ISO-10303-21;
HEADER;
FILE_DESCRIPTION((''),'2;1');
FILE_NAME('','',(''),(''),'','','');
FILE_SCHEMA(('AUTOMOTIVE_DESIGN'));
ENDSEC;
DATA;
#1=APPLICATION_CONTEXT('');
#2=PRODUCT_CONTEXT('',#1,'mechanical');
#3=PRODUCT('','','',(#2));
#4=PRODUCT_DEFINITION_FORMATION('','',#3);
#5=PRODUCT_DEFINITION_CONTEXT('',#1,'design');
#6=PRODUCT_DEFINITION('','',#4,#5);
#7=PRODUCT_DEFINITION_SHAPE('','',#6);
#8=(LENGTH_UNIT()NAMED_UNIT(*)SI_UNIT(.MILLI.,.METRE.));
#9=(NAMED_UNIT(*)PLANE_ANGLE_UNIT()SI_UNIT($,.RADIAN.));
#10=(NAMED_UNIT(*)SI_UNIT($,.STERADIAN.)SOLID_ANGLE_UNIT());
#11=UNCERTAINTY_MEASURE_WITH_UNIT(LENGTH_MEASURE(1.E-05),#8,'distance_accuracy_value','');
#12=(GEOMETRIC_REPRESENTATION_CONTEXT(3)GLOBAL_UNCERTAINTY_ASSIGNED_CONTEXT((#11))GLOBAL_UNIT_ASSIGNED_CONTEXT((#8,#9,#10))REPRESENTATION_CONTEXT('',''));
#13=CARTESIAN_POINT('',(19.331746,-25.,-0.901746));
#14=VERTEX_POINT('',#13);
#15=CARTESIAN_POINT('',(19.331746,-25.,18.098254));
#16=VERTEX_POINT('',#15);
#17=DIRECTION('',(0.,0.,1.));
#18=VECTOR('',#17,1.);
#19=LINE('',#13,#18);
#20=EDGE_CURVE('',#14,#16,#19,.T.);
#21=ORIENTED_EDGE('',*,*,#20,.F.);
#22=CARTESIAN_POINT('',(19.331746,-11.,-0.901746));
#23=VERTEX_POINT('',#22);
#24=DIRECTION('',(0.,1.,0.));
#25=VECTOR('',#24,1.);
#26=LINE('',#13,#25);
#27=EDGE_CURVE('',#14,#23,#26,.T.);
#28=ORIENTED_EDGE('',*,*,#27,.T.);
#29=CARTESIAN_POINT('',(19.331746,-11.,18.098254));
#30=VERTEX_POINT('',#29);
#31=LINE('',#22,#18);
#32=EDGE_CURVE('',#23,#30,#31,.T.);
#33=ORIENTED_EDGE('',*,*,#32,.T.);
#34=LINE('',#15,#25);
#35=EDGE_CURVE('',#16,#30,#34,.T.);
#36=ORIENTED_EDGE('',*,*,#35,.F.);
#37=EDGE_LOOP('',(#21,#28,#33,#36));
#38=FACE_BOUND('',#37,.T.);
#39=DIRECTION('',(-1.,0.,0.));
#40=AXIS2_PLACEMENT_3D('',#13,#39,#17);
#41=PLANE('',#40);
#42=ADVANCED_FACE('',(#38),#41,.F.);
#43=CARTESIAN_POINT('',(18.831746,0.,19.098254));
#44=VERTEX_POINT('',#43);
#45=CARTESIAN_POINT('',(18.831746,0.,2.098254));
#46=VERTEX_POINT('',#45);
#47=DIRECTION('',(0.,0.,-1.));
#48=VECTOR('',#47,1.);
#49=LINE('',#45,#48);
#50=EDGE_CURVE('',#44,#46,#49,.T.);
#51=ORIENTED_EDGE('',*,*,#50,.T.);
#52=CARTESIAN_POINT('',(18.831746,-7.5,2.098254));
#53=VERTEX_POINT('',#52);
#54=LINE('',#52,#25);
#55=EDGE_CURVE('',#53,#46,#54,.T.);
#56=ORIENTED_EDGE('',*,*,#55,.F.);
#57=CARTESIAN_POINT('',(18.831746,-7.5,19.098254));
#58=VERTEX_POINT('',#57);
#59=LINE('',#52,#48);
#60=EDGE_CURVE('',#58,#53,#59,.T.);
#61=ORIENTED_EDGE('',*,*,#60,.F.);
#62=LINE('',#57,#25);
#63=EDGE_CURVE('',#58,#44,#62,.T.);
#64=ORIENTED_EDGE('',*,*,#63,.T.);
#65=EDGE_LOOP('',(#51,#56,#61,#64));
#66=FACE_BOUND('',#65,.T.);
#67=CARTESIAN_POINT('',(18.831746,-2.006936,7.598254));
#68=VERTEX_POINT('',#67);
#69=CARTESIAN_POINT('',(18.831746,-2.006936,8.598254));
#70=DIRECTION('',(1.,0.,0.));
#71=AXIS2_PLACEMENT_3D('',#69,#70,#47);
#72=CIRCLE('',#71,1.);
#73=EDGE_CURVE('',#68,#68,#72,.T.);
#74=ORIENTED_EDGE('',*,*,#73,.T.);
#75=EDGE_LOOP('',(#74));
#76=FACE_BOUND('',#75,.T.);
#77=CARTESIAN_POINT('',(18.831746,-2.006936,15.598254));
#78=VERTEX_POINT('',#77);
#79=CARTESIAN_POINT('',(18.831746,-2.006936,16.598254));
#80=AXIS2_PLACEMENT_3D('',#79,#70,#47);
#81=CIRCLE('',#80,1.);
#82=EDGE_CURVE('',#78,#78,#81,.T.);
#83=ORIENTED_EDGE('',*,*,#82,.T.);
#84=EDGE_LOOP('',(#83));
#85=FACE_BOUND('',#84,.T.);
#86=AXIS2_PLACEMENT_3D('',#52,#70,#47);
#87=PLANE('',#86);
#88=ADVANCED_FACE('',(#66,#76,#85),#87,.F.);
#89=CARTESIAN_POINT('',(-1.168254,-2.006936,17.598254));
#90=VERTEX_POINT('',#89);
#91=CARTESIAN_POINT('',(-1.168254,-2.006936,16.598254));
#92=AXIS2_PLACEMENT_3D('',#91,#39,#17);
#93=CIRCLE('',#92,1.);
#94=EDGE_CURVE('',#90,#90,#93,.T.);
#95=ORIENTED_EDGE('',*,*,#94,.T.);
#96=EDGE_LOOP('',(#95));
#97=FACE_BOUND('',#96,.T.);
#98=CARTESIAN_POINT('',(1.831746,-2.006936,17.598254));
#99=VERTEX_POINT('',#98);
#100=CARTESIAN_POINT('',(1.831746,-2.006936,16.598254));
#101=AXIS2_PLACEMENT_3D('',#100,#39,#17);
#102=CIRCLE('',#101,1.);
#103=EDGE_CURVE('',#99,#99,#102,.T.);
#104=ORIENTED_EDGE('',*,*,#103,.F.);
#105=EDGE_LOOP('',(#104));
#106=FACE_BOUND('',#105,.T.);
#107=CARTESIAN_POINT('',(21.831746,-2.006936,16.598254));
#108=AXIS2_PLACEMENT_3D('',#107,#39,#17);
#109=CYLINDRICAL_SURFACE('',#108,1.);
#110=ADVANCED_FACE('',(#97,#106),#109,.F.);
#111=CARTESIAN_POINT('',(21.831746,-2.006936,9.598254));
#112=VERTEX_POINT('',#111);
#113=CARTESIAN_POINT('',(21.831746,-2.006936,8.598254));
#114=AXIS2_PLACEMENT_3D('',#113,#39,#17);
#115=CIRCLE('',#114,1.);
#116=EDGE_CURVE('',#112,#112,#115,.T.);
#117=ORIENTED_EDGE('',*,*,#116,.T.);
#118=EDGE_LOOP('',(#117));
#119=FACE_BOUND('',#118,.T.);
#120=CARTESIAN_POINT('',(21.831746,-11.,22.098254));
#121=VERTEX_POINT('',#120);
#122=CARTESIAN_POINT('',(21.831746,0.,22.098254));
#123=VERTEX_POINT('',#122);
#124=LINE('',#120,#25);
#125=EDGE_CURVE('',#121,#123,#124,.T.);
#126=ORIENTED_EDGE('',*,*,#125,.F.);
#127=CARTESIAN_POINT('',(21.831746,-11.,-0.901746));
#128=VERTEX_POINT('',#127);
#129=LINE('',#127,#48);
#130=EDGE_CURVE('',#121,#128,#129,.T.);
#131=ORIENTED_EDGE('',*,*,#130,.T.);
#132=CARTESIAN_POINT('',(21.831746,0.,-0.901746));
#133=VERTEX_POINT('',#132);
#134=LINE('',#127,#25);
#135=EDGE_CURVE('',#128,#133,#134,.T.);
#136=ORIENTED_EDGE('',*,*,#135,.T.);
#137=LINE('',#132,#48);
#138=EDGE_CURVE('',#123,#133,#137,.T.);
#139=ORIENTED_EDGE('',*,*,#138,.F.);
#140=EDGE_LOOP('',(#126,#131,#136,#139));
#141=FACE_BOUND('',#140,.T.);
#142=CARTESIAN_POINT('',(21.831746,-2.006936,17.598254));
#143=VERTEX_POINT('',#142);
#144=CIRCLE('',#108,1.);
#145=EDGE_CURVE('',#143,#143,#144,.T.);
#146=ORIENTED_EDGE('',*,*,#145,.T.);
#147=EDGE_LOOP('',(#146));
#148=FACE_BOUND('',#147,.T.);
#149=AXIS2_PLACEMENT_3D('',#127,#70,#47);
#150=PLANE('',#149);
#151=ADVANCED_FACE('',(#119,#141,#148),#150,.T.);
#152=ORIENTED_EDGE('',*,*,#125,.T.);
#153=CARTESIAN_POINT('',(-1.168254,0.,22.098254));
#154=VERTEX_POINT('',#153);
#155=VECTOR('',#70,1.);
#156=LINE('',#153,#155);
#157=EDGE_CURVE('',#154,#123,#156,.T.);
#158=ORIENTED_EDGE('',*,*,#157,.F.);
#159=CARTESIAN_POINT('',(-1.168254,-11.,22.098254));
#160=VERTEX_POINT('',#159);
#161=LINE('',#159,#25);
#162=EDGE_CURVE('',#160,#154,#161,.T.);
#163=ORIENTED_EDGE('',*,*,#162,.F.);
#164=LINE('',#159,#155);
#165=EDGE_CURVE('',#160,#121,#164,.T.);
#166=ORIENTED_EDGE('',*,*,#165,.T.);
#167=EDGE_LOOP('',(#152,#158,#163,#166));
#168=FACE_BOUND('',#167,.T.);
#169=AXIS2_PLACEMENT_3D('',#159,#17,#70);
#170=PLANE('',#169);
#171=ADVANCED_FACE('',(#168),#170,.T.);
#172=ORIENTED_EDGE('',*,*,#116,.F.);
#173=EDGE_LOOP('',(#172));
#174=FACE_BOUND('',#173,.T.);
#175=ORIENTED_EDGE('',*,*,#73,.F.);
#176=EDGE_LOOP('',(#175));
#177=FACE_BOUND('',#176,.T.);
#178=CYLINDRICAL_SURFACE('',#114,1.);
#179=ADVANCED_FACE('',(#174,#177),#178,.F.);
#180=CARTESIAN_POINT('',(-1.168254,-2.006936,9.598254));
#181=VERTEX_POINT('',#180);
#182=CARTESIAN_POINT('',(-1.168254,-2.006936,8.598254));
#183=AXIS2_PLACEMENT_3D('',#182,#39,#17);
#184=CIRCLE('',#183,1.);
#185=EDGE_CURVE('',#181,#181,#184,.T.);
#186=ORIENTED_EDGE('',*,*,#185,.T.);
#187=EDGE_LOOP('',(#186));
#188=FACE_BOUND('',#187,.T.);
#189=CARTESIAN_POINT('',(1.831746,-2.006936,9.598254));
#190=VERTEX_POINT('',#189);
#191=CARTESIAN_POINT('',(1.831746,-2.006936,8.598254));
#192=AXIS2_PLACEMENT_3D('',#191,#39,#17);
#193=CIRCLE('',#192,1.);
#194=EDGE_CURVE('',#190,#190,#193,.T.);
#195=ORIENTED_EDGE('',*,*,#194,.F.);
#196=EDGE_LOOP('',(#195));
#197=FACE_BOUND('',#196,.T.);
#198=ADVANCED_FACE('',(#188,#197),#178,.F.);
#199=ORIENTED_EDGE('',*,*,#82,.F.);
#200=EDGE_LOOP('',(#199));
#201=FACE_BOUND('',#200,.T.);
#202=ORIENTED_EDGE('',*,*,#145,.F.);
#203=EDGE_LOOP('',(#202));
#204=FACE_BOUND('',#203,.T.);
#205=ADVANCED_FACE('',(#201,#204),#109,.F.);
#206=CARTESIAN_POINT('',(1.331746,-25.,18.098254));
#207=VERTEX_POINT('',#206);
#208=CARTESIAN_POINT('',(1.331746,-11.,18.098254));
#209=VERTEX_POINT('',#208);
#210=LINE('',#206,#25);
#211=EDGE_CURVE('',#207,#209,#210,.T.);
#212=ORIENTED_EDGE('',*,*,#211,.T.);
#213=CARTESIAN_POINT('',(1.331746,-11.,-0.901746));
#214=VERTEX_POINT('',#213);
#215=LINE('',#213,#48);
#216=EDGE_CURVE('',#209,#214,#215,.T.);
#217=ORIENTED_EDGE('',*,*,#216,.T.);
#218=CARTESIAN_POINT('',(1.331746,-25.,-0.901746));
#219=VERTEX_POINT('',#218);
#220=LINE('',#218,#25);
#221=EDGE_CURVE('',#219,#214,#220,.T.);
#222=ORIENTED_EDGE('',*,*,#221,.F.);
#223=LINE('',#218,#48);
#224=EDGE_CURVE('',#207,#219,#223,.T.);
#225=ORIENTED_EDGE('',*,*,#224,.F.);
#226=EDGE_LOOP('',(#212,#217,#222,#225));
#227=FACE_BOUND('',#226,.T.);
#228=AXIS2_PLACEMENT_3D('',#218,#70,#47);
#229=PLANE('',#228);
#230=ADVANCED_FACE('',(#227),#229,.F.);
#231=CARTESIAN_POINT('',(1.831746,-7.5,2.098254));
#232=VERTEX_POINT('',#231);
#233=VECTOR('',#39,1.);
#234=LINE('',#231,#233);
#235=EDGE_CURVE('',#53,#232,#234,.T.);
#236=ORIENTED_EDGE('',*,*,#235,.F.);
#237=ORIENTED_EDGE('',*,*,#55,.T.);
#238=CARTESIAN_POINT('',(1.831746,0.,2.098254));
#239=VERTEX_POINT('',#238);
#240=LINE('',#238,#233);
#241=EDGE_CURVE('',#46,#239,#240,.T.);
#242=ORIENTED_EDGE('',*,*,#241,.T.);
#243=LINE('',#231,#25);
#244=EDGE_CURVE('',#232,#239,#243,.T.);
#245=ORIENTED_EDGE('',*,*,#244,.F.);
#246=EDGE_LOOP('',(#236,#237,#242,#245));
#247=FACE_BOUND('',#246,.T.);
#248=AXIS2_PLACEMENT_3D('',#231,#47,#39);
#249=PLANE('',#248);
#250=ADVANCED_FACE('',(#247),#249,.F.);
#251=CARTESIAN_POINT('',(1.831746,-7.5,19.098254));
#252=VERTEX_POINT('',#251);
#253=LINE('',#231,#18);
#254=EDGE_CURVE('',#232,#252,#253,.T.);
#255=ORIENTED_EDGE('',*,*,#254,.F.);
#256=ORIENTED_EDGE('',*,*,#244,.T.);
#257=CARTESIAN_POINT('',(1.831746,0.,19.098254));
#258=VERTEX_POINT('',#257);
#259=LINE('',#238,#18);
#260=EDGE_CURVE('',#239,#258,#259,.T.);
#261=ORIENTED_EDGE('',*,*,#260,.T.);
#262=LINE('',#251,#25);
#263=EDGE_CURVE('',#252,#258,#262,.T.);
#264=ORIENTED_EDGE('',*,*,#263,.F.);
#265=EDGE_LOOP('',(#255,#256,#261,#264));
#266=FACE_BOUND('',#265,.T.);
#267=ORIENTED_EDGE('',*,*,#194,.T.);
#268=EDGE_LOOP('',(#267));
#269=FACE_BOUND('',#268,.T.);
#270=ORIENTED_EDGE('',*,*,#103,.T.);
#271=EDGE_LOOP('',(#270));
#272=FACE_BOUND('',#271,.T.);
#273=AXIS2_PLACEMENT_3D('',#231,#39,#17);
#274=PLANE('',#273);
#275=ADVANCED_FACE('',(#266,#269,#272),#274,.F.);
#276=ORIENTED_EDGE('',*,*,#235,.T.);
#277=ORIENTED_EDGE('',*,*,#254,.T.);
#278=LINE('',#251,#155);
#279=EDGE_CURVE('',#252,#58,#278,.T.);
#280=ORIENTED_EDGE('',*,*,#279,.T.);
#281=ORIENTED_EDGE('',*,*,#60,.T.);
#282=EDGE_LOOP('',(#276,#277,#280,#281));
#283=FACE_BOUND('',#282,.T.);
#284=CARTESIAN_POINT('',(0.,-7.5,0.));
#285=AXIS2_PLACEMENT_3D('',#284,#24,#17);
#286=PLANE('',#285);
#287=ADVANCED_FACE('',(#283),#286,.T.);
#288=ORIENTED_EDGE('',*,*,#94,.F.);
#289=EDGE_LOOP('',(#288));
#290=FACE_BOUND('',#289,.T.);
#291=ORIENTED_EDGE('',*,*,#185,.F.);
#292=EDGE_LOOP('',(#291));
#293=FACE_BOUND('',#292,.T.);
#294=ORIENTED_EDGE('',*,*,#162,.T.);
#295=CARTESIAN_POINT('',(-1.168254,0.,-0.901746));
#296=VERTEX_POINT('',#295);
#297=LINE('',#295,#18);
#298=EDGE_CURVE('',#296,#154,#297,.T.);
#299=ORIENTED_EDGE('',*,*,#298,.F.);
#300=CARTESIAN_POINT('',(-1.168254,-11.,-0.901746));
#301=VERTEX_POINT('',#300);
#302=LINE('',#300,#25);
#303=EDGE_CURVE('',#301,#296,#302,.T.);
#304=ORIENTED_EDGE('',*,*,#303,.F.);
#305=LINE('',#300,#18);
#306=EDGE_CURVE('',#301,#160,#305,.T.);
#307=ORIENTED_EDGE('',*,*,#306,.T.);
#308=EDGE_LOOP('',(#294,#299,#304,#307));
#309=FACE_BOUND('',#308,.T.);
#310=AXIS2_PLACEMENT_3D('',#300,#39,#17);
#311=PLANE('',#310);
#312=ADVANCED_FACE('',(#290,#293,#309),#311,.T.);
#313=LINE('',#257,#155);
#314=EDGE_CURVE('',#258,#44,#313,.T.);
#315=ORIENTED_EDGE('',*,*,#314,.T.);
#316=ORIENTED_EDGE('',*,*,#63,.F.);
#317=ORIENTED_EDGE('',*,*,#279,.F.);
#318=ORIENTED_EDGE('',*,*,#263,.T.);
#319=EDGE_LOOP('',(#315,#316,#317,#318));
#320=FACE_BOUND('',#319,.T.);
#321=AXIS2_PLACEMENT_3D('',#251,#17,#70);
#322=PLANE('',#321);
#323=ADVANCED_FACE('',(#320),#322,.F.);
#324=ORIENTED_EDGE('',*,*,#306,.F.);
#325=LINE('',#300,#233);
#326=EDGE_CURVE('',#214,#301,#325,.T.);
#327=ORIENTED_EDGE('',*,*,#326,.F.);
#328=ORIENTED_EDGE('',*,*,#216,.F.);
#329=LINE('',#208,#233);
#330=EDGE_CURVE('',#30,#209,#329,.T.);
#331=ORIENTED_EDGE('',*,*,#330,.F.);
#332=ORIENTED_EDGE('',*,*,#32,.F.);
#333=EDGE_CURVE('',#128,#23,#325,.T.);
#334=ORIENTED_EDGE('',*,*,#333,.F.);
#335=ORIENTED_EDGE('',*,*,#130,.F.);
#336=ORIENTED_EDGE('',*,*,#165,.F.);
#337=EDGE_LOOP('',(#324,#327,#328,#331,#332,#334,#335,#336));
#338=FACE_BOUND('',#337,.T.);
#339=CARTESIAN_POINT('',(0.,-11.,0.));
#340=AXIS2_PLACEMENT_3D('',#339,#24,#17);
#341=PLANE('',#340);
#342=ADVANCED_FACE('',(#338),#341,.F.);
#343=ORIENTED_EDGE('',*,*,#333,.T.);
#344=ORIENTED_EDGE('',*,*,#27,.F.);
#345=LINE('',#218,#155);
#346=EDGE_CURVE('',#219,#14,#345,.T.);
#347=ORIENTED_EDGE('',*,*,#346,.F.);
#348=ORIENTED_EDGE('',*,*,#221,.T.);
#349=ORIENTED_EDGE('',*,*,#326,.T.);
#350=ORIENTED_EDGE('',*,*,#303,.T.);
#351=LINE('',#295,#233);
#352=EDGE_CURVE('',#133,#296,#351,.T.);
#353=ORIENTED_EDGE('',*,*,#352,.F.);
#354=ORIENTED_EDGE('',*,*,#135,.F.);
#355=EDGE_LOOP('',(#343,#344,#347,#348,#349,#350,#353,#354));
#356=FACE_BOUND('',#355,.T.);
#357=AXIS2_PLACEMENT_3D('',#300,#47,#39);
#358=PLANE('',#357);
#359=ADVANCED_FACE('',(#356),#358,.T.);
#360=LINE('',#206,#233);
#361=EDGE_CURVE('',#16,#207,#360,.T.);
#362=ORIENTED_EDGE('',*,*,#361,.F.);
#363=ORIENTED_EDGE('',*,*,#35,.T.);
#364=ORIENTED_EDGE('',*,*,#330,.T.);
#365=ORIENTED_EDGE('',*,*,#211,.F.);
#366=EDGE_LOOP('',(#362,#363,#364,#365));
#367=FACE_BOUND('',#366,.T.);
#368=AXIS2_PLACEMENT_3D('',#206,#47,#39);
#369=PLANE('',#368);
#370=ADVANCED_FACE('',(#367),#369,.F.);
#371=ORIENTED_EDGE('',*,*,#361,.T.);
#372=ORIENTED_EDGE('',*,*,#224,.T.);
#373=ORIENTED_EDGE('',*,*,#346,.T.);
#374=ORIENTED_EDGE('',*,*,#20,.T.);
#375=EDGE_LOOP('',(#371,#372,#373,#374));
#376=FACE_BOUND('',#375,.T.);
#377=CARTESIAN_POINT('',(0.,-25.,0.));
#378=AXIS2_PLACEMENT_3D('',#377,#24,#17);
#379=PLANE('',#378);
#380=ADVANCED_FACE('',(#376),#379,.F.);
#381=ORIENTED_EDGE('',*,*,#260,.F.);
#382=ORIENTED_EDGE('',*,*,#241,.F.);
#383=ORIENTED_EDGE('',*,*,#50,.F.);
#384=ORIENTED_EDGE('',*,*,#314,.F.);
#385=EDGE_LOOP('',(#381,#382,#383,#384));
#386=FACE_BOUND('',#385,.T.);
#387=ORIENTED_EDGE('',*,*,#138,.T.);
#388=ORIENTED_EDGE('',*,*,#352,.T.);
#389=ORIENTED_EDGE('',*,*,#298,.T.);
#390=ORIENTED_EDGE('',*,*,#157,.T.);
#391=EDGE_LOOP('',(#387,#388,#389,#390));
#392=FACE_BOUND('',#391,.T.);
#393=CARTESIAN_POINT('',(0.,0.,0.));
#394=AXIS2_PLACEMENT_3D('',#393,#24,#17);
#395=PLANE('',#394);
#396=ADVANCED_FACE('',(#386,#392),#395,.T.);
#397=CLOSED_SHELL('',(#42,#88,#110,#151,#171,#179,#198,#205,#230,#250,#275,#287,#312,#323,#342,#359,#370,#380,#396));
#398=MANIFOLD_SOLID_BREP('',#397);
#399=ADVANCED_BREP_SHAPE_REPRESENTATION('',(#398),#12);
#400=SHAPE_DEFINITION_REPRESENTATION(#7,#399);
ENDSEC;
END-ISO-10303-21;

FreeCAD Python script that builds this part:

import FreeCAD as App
import Part
import Sketcher
from FreeCAD import Vector
Q = App.Units.Quantity

doc = App.newDocument("Part")
body = doc.addObject("PartDesign::Body", "Body")

# Sketch on XZ plane
sketch1 = doc.addObject("Sketcher::SketchObject", "Sketch")
body.addObject(sketch1)
sketch1.AttachmentSupport = (doc.XZ_Plane, [""])
sketch1.MapMode = "FlatFace"
sketch1.addGeometry([
    Part.LineSegment(Vector(-1.168254, -0.901746, 0), Vector(-1.168254, 22.098254, 0)),
    Part.LineSegment(Vector(-1.168254, 22.098254, 0), Vector(21.831746, 22.098254, 0)),
    Part.LineSegment(Vector(21.831746, 22.098254, 0), Vector(21.831746, -0.901746, 0)),
    Part.LineSegment(Vector(21.831746, -0.901746, 0), Vector(-1.168254, -0.901746, 0)),
], False)
sketch1.addConstraint([
    Sketcher.Constraint("Coincident", 0, 2, 1, 1),
    Sketcher.Constraint("Coincident", 1, 2, 2, 1),
    Sketcher.Constraint("Coincident", 2, 2, 3, 1),
    Sketcher.Constraint("Coincident", 3, 2, 0, 1),
    Sketcher.Constraint("Vertical", 0),
    Sketcher.Constraint("Horizontal", 1),
    Sketcher.Constraint("Vertical", 2),
    Sketcher.Constraint("Horizontal", 3),
    Sketcher.Constraint("Equal", 3, 0),
    Sketcher.Constraint("DistanceX", 1, 1, 1, 2, Q("23 mm")),
    Sketcher.Constraint("DistanceX", 0, 2, -1, 1, Q("1.168254 mm")),
    Sketcher.Constraint("DistanceY", -1, 1, 0, 2, Q("22.098254 mm")),
])
pad1 = doc.addObject("PartDesign::Pad", "Pad")
body.addObject(pad1)
pad1.Profile = sketch1
pad1.Length = 11

# Sketch on XZ plane
sketch2 = doc.addObject("Sketcher::SketchObject", "Sketch001")
body.addObject(sketch2)
sketch2.AttachmentSupport = (doc.XZ_Plane, [""])
sketch2.MapMode = "FlatFace"
sketch2.addGeometry([
    Part.LineSegment(Vector(1.831746, 2.098254, 0), Vector(1.831746, 19.098254, 0)),
    Part.LineSegment(Vector(1.831746, 19.098254, 0), Vector(18.831746, 19.098254, 0)),
    Part.LineSegment(Vector(18.831746, 19.098254, 0), Vector(18.831746, 2.098254, 0)),
    Part.LineSegment(Vector(18.831746, 2.098254, 0), Vector(1.831746, 2.098254, 0)),
], False)
sketch2.addConstraint([
    Sketcher.Constraint("Coincident", 0, 2, 1, 1),
    Sketcher.Constraint("Coincident", 1, 2, 2, 1),
    Sketcher.Constraint("Coincident", 2, 2, 3, 1),
    Sketcher.Constraint("Coincident", 3, 2, 0, 1),
    Sketcher.Constraint("Vertical", 0),
    Sketcher.Constraint("Horizontal", 1),
    Sketcher.Constraint("Vertical", 2),
    Sketcher.Constraint("Horizontal", 3),
    Sketcher.Constraint("Equal", 3, 0),
    Sketcher.Constraint("DistanceX", 1, 1, 1, 2, Q("17 mm")),
    Sketcher.Constraint("DistanceX", -1, 1, 0, 2, Q("1.831746 mm")),
    Sketcher.Constraint("DistanceY", -1, 1, 0, 2, Q("19.098254 mm")),
])
pocket1 = doc.addObject("PartDesign::Pocket", "Pocket")
body.addObject(pocket1)
pocket1.Profile = sketch2
pocket1.Length = 7.5
pocket1.Reversed = True

# Sketch on XZ plane
sketch3 = doc.addObject("Sketcher::SketchObject", "Sketch002")
body.addObject(sketch3)
sketch3.AttachmentSupport = (doc.XZ_Plane, [""])
sketch3.MapMode = "FlatFace"
sketch3.AttachmentOffset = App.Placement(Vector(0, 0, 11), App.Rotation())
sketch3.addGeometry([
    Part.LineSegment(Vector(1.331746, 18.098254, 0), Vector(1.331746, -0.901746, 0)),
    Part.LineSegment(Vector(1.331746, -0.901746, 0), Vector(19.331746, -0.901746, 0)),
    Part.LineSegment(Vector(19.331746, -0.901746, 0), Vector(19.331746, 18.098254, 0)),
    Part.LineSegment(Vector(19.331746, 18.098254, 0), Vector(1.331746, 18.098254, 0)),
], False)
sketch3.addConstraint([
    Sketcher.Constraint("Coincident", 0, 2, 1, 1),
    Sketcher.Constraint("Coincident", 1, 2, 2, 1),
    Sketcher.Constraint("Coincident", 2, 2, 3, 1),
    Sketcher.Constraint("Coincident", 3, 2, 0, 1),
    Sketcher.Constraint("Vertical", 0),
    Sketcher.Constraint("Horizontal", 1),
    Sketcher.Constraint("Vertical", 2),
    Sketcher.Constraint("Horizontal", 3),
    Sketcher.Constraint("DistanceX", 1, 1, 1, 2, Q("18 mm")),
    Sketcher.Constraint("DistanceY", 0, 2, 0, 1, Q("19 mm")),
    Sketcher.Constraint("DistanceX", -1, 1, 0, 2, Q("1.331746 mm")),
    Sketcher.Constraint("DistanceY", 0, 2, -1, 1, Q("0.901746 mm")),
])
pad2 = doc.addObject("PartDesign::Pad", "Pad001")
body.addObject(pad2)
pad2.Profile = sketch3
pad2.Length = 14

# Sketch on YZ plane
sketch4 = doc.addObject("Sketcher::SketchObject", "Sketch003")
body.addObject(sketch4)
sketch4.AttachmentSupport = (doc.YZ_Plane, [""])
sketch4.MapMode = "FlatFace"
sketch4.AttachmentOffset = App.Placement(Vector(0, 0, -1.168254), App.Rotation())
sketch4.addGeometry([
    Part.Circle(Vector(-2.006936, 8.598254, 0), Vector(0, 0, 1), 1),
    Part.Circle(Vector(-2.006936, 16.598254, 0), Vector(0, 0, 1), 1),
], False)
sketch4.addConstraint([
    Sketcher.Constraint("Equal", 0, 1),
    Sketcher.Constraint("Vertical", 0, 3, 1, 3),
    Sketcher.Constraint("Diameter", 0, Q("2 mm")),
    Sketcher.Constraint("DistanceY", 0, 3, 1, 3, Q("8 mm")),
    Sketcher.Constraint("DistanceX", 0, 3, -1, 1, Q("2.006936 mm")),
    Sketcher.Constraint("DistanceY", -1, 1, 0, 3, Q("8.598254 mm")),
])
pocket2 = doc.addObject("PartDesign::Pocket", "Pocket001")
body.addObject(pocket2)
pocket2.Profile = sketch4
pocket2.Length = 23
pocket2.Reversed = True

doc.recompute()
